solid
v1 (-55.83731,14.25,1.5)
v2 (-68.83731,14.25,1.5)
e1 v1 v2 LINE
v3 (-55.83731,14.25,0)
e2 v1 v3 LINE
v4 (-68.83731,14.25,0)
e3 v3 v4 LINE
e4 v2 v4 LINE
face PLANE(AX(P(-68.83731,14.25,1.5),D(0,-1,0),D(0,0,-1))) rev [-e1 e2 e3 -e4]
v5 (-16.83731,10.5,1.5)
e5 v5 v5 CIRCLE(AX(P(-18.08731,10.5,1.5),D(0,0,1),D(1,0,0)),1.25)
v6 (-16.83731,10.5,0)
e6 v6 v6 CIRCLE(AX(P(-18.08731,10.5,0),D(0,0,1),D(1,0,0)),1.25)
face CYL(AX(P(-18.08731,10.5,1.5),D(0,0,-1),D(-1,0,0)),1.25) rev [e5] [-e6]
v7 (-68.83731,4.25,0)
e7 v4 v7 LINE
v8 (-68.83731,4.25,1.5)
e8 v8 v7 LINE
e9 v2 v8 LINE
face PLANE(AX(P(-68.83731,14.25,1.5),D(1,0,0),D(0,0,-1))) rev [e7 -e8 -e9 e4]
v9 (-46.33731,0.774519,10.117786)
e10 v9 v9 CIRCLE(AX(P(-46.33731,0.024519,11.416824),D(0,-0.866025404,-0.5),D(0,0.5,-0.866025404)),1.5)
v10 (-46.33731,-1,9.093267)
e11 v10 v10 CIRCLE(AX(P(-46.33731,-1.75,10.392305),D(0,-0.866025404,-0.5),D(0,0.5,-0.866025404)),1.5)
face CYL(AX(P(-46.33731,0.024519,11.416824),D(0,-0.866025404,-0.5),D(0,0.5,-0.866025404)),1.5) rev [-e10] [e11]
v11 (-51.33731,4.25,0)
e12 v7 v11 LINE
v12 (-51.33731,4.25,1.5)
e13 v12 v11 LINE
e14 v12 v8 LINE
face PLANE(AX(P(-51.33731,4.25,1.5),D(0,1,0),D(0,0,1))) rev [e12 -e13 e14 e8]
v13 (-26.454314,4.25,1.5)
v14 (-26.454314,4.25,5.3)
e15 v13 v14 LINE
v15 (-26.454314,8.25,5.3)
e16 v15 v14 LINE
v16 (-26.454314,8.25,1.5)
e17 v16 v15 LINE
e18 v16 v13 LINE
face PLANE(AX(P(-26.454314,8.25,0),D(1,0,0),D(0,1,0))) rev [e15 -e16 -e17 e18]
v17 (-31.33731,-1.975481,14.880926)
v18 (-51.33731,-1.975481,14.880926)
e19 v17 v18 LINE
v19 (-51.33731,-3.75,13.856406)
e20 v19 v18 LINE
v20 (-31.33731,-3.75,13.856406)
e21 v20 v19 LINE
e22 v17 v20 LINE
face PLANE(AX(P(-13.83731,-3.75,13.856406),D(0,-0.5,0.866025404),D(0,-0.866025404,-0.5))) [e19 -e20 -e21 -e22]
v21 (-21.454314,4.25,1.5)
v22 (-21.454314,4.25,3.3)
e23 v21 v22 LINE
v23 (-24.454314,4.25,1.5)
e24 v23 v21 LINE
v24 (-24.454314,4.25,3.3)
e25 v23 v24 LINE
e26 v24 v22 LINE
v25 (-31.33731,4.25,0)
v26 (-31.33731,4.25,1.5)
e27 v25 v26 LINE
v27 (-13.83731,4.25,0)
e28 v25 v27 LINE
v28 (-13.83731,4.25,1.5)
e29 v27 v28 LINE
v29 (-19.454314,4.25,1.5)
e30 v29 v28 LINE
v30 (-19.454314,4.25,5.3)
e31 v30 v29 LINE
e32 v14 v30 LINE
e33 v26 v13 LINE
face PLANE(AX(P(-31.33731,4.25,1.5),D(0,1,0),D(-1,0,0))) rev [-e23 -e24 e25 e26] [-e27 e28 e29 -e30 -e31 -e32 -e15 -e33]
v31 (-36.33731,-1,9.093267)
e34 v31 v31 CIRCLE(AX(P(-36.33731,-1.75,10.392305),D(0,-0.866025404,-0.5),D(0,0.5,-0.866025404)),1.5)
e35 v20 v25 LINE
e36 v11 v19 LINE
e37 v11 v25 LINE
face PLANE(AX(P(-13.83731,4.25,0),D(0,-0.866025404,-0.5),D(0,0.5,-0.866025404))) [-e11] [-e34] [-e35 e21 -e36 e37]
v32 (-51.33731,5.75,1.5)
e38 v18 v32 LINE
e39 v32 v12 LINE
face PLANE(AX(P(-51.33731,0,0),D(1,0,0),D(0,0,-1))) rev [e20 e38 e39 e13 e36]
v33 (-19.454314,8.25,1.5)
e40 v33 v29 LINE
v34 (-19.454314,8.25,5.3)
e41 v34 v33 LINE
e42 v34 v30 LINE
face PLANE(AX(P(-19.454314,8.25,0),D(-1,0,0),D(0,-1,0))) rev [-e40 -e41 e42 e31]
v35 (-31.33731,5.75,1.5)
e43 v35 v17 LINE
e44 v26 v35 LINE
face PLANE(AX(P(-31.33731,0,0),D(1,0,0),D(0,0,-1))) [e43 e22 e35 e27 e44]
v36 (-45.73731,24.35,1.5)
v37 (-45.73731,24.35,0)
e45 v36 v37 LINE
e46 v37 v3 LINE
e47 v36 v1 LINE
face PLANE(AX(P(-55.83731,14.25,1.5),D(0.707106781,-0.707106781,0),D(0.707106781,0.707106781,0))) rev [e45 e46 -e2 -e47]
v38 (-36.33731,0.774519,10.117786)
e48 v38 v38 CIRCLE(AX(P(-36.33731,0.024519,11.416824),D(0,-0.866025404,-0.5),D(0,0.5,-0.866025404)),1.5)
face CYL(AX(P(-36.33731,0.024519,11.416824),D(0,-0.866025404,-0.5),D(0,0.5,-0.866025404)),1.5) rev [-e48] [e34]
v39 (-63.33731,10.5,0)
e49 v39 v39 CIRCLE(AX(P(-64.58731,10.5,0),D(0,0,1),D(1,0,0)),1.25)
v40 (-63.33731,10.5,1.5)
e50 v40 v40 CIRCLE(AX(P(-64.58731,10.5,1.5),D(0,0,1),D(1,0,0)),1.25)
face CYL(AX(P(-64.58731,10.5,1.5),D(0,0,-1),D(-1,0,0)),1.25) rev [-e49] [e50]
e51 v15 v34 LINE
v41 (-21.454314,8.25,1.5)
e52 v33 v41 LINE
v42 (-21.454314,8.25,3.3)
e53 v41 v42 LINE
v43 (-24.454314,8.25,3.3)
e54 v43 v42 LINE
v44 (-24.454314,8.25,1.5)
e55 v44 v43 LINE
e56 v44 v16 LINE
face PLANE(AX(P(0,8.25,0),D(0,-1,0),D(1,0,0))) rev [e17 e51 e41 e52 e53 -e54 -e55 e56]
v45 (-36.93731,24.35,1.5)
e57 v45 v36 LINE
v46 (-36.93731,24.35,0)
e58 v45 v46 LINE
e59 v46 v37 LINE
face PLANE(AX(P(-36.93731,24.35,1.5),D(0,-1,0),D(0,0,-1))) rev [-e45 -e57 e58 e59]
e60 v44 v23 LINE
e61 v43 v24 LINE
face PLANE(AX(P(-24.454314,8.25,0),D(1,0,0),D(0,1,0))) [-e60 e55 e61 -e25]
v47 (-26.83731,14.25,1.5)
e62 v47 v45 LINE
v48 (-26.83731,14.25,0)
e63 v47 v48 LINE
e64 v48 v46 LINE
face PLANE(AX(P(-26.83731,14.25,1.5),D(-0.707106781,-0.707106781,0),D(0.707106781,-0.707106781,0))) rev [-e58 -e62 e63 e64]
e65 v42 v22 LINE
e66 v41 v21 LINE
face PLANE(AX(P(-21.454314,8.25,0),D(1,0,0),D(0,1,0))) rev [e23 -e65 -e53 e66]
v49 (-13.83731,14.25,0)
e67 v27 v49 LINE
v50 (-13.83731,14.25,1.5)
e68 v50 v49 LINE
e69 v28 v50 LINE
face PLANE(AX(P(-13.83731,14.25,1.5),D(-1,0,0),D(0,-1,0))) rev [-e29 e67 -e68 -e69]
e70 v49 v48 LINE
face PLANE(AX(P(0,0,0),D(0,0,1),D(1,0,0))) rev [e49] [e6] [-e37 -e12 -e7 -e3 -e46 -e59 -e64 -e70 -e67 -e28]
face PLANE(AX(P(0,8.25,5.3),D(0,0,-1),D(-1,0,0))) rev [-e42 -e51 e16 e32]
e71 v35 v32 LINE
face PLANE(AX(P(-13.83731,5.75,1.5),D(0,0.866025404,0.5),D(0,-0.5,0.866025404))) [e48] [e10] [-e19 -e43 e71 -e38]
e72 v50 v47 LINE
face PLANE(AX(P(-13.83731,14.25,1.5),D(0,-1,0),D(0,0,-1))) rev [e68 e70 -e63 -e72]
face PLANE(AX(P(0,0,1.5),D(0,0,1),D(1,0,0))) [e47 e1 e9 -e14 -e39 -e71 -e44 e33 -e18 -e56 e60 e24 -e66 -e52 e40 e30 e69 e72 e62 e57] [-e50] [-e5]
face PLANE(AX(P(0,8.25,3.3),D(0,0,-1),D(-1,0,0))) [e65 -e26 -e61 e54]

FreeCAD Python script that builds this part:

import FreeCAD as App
import Part
import Sketcher

V = App.Vector
Q = App.Units.Quantity


def add_polygon(sketch, points):
    """Adds a closed chain of lines whose ends are joined by coincident constraints."""
    first, n = sketch.GeometryCount, len(points)
    for a, b in zip(points, points[1:] + points[:1]):
        sketch.addGeometry(Part.LineSegment(App.Vector(*a, 0), App.Vector(*b, 0)), False)
    for i in range(n):
        sketch.addConstraint(Sketcher.Constraint("Coincident", first + i, 2, first + (i + 1) % n, 1))

doc = App.newDocument("Part")
body = doc.addObject("PartDesign::Body", "Body")

# Sketch on XY plane
sketch1 = body.newObject("Sketcher::SketchObject", "Sketch")
sketch1.AttachmentSupport = (doc.getObject("XY_Plane"), [""])
sketch1.MapMode = "FlatFace"
add_polygon(sketch1, [(-55.8, 14.2), (-68.8, 14.2), (-68.8, 4.2), (-13.8, 4.2), (-13.8, 14.2), (-26.8, 14.2), (-36.9, 24.4), (-45.7, 24.4)])  # lines 0-7
sketch1.addGeometry(Part.Circle(V(-18.1, 10.5, 0), V(0, 0, 1), 1.2), False)  # 8
sketch1.addGeometry(Part.Circle(V(-64.6, 10.5, 0), V(0, 0, 1), 1.2), False)  # 9
sketch1.addConstraint(Sketcher.Constraint("Horizontal", 0))
sketch1.addConstraint(Sketcher.Constraint("Vertical", 1))
sketch1.addConstraint(Sketcher.Constraint("Horizontal", 2))
sketch1.addConstraint(Sketcher.Constraint("Vertical", 3))
sketch1.addConstraint(Sketcher.Constraint("Horizontal", 4))
sketch1.addConstraint(Sketcher.Constraint("Horizontal", 6))
sketch1.addConstraint(Sketcher.Constraint("Equal", 8, 9))
sketch1.addConstraint(Sketcher.Constraint("Perpendicular", 5, 7))
sketch1.addConstraint(Sketcher.Constraint("Horizontal", 8, 3, 9, 3))
sketch1.addConstraint(Sketcher.Constraint("Horizontal", 0, 2, 3, 2))
sketch1.addConstraint(Sketcher.Constraint("Equal", 0, 4))
sketch1.addConstraint(Sketcher.Constraint("Equal", 5, 7))
sketch1.addConstraint(Sketcher.Constraint("Diameter", 8, 2.5))
sketch1.addConstraint(Sketcher.Constraint("DistanceX", 0, 2, 0, 1, 13.0))
sketch1.addConstraint(Sketcher.Constraint("DistanceX", 2, 1, 2, 2, 55.0))
sketch1.addConstraint(Sketcher.Constraint("DistanceY", 1, 2, 1, 1, 10.0))
sketch1.addConstraint(Sketcher.Constraint("DistanceX", 6, 2, 6, 1, 8.8))
sketch1.addConstraint(Sketcher.Constraint("DistanceY", -1, 1, 8, 3, 10.5))
sketch1.addConstraint(Sketcher.Constraint("DistanceX", 9, 3, 8, 3, 46.5))
sketch1.addConstraint(Sketcher.Constraint("DistanceY", -1, 1, 0, 2, 14.25))
sketch1.addConstraint(Sketcher.Constraint("DistanceX", 0, 2, 9, 3, 4.25))
sketch1.addConstraint(Sketcher.Constraint("DistanceX", 8, 3, -1, 1, 18.08731))
pad1 = body.newObject("PartDesign::Pad", "Pad")
pad1.Profile = sketch1
pad1.Length = 1.5

# Sketch on YZ plane
sketch2 = body.newObject("Sketcher::SketchObject", "Sketch001")
sketch2.AttachmentSupport = (doc.getObject("YZ_Plane"), [""])
sketch2.MapMode = "FlatFace"
sketch2.AttachmentOffset = App.Placement(V(0, 0, -68.83731), App.Rotation())
add_polygon(sketch2, [(-3.8, 13.9), (-2, 14.9), (5.8, 1.5), (4.2, 1.5), (4.2, 0)])  # lines 0-4
sketch2.addConstraint(Sketcher.Constraint("Horizontal", 2))
sketch2.addConstraint(Sketcher.Constraint("Vertical", 3))
sketch2.addConstraint(Sketcher.Constraint("PointOnObject", 3, 2, -1))
sketch2.addConstraint(Sketcher.Constraint("Perpendicular", 0, 1))
sketch2.addConstraint(Sketcher.Constraint("Parallel", 1, 4))
sketch2.addConstraint(Sketcher.Constraint("Equal", 2, 3))
sketch2.addConstraint(Sketcher.Constraint("Angle", 0, Q("30 deg")))
sketch2.addConstraint(Sketcher.Constraint("Distance", 4, 16.0))
sketch2.addConstraint(Sketcher.Constraint("DistanceX", 2, 2, 2, 1, 1.5))
sketch2.addConstraint(Sketcher.Constraint("DistanceX", -1, 1, 1, 2, 5.75))
pad2 = body.newObject("PartDesign::Pad", "Pad001")
pad2.Profile = sketch2
pad2.Length = 55

# Sketch on YZ plane
sketch3 = body.newObject("Sketcher::SketchObject", "Sketch002")
sketch3.AttachmentSupport = (doc.getObject("YZ_Plane"), [""])
sketch3.MapMode = "FlatFace"
sketch3.AttachmentOffset = App.Placement(V(0, 0, -68.83731), App.Rotation())
add_polygon(sketch3, [(-3.8, 13.9), (-2, 14.9), (5.8, 1.5), (4.2, 1.5), (4.2, 0)])  # lines 0-4
sketch3.addConstraint(Sketcher.Constraint("Horizontal", 2))
sketch3.addConstraint(Sketcher.Constraint("Vertical", 3))
sketch3.addConstraint(Sketcher.Constraint("PointOnObject", 3, 2, -1))
sketch3.addConstraint(Sketcher.Constraint("Perpendicular", 0, 1))
sketch3.addConstraint(Sketcher.Constraint("Parallel", 1, 4))
sketch3.addConstraint(Sketcher.Constraint("Equal", 2, 3))
sketch3.addConstraint(Sketcher.Constraint("Angle", 0, Q("30 deg")))
sketch3.addConstraint(Sketcher.Constraint("Distance", 4, 16.0))
sketch3.addConstraint(Sketcher.Constraint("DistanceX", 2, 2, 2, 1, 1.5))
sketch3.addConstraint(Sketcher.Constraint("DistanceX", -1, 1, 1, 2, 5.75))
pocket1 = body.newObject("PartDesign::Pocket", "Pocket")
pocket1.Profile = sketch3
pocket1.Length = 17.5
pocket1.Reversed = True

# Sketch on YZ plane
sketch4 = body.newObject("Sketcher::SketchObject", "Sketch003")
sketch4.AttachmentSupport = (doc.getObject("YZ_Plane"), [""])
sketch4.MapMode = "FlatFace"
sketch4.AttachmentOffset = App.Placement(V(0, 0, -13.83731), App.Rotation())
add_polygon(sketch4, [(5.8, 1.5), (-2, 14.9), (-3.8, 13.9), (4.2, 0), (4.2, 1.5)])  # lines 0-4
sketch4.addConstraint(Sketcher.Constraint("Vertical", 3))
sketch4.addConstraint(Sketcher.Constraint("Horizontal", 4))
sketch4.addConstraint(Sketcher.Constraint("PointOnObject", 2, 2, -1))
sketch4.addConstraint(Sketcher.Constraint("Perpendicular", 0, 1))
sketch4.addConstraint(Sketcher.Constraint("Perpendicular", 1, 2))
sketch4.addConstraint(Sketcher.Constraint("Equal", 4, 3))
sketch4.addConstraint(Sketcher.Constraint("Angle", 0, Q("120 deg")))
sketch4.addConstraint(Sketcher.Constraint("Distance", 2, 16.0))
sketch4.addConstraint(Sketcher.Constraint("DistanceX", 4, 1, 4, 2, 1.5))
sketch4.addConstraint(Sketcher.Constraint("DistanceX", 1, 2, -1, 1, 3.75))
pocket2 = body.newObject("PartDesign::Pocket", "Pocket001")
pocket2.Profile = sketch4
pocket2.Length = 17.5

# Sketch on an angled plane
sketch5 = body.newObject("Sketcher::SketchObject", "Sketch004")
sketch5.Placement = App.Placement(V(0, 3.1875, 1.840304), App.Rotation(V(1, 0, 0), V(0, -0.5, 0.866025404), V(0, -0.866025404, -0.5), "ZXY"))
sketch5.addGeometry(Part.Circle(V(-36.3, 9.9, 0), V(0, 0, 1), 1.5), False)
sketch5.addGeometry(Part.Circle(V(-46.3, 9.9, 0), V(0, 0, 1), 1.5), False)
sketch5.addConstraint(Sketcher.Constraint("Equal", 0, 1))
sketch5.addConstraint(Sketcher.Constraint("Horizontal", 0, 3, 1, 3))
sketch5.addConstraint(Sketcher.Constraint("Diameter", 0, 3.0))
sketch5.addConstraint(Sketcher.Constraint("DistanceX", 1, 3, 0, 3, 10.0))
sketch5.addConstraint(Sketcher.Constraint("DistanceY", -1, 1, 0, 3, 9.875))
sketch5.addConstraint(Sketcher.Constraint("DistanceX", 0, 3, -1, 1, 36.33731))
pocket3 = body.newObject("PartDesign::Pocket", "Pocket002")
pocket3.Profile = sketch5
pocket3.Length = 2.049041

# Sketch on XZ plane
sketch6 = body.newObject("Sketcher::SketchObject", "Sketch005")
sketch6.AttachmentSupport = (doc.getObject("XZ_Plane"), [""])
sketch6.MapMode = "FlatFace"
sketch6.AttachmentOffset = App.Placement(V(0, 0, -4.25), App.Rotation())
add_polygon(sketch6, [(-26.5, 1.5), (-24.5, 1.5), (-24.5, 3.3), (-21.5, 3.3), (-21.5, 1.5), (-19.5, 1.5), (-19.5, 5.3), (-26.5, 5.3)])  # lines 0-7
sketch6.addConstraint(Sketcher.Constraint("Horizontal", 0))
sketch6.addConstraint(Sketcher.Constraint("Vertical", 1))
sketch6.addConstraint(Sketcher.Constraint("Horizontal", 2))
sketch6.addConstraint(Sketcher.Constraint("Vertical", 3))
sketch6.addConstraint(Sketcher.Constraint("Horizontal", 4))
sketch6.addConstraint(Sketcher.Constraint("Vertical", 5))
sketch6.addConstraint(Sketcher.Constraint("Horizontal", 6))
sketch6.addConstraint(Sketcher.Constraint("Vertical", 7))
sketch6.addConstraint(Sketcher.Constraint("Horizontal", 0, 2, 3, 2))
sketch6.addConstraint(Sketcher.Constraint("Equal", 0, 4))
sketch6.addConstraint(Sketcher.Constraint("DistanceX", 0, 1, 0, 2, 2.0))
sketch6.addConstraint(Sketcher.Constraint("DistanceX", 2, 1, 2, 2, 3.0))
sketch6.addConstraint(Sketcher.Constraint("DistanceY", 1, 1, 1, 2, 1.8))
sketch6.addConstraint(Sketcher.Constraint("DistanceY", 5, 1, 5, 2, 3.8))
sketch6.addConstraint(Sketcher.Constraint("DistanceY", -1, 1, 0, 2, 1.5))
sketch6.addConstraint(Sketcher.Constraint("DistanceX", 0, 2, -1, 1, 24.454314))
pad3 = body.newObject("PartDesign::Pad", "Pad002")
pad3.Profile = sketch6
pad3.Length = 4
pad3.Reversed = True

doc.recompute()
